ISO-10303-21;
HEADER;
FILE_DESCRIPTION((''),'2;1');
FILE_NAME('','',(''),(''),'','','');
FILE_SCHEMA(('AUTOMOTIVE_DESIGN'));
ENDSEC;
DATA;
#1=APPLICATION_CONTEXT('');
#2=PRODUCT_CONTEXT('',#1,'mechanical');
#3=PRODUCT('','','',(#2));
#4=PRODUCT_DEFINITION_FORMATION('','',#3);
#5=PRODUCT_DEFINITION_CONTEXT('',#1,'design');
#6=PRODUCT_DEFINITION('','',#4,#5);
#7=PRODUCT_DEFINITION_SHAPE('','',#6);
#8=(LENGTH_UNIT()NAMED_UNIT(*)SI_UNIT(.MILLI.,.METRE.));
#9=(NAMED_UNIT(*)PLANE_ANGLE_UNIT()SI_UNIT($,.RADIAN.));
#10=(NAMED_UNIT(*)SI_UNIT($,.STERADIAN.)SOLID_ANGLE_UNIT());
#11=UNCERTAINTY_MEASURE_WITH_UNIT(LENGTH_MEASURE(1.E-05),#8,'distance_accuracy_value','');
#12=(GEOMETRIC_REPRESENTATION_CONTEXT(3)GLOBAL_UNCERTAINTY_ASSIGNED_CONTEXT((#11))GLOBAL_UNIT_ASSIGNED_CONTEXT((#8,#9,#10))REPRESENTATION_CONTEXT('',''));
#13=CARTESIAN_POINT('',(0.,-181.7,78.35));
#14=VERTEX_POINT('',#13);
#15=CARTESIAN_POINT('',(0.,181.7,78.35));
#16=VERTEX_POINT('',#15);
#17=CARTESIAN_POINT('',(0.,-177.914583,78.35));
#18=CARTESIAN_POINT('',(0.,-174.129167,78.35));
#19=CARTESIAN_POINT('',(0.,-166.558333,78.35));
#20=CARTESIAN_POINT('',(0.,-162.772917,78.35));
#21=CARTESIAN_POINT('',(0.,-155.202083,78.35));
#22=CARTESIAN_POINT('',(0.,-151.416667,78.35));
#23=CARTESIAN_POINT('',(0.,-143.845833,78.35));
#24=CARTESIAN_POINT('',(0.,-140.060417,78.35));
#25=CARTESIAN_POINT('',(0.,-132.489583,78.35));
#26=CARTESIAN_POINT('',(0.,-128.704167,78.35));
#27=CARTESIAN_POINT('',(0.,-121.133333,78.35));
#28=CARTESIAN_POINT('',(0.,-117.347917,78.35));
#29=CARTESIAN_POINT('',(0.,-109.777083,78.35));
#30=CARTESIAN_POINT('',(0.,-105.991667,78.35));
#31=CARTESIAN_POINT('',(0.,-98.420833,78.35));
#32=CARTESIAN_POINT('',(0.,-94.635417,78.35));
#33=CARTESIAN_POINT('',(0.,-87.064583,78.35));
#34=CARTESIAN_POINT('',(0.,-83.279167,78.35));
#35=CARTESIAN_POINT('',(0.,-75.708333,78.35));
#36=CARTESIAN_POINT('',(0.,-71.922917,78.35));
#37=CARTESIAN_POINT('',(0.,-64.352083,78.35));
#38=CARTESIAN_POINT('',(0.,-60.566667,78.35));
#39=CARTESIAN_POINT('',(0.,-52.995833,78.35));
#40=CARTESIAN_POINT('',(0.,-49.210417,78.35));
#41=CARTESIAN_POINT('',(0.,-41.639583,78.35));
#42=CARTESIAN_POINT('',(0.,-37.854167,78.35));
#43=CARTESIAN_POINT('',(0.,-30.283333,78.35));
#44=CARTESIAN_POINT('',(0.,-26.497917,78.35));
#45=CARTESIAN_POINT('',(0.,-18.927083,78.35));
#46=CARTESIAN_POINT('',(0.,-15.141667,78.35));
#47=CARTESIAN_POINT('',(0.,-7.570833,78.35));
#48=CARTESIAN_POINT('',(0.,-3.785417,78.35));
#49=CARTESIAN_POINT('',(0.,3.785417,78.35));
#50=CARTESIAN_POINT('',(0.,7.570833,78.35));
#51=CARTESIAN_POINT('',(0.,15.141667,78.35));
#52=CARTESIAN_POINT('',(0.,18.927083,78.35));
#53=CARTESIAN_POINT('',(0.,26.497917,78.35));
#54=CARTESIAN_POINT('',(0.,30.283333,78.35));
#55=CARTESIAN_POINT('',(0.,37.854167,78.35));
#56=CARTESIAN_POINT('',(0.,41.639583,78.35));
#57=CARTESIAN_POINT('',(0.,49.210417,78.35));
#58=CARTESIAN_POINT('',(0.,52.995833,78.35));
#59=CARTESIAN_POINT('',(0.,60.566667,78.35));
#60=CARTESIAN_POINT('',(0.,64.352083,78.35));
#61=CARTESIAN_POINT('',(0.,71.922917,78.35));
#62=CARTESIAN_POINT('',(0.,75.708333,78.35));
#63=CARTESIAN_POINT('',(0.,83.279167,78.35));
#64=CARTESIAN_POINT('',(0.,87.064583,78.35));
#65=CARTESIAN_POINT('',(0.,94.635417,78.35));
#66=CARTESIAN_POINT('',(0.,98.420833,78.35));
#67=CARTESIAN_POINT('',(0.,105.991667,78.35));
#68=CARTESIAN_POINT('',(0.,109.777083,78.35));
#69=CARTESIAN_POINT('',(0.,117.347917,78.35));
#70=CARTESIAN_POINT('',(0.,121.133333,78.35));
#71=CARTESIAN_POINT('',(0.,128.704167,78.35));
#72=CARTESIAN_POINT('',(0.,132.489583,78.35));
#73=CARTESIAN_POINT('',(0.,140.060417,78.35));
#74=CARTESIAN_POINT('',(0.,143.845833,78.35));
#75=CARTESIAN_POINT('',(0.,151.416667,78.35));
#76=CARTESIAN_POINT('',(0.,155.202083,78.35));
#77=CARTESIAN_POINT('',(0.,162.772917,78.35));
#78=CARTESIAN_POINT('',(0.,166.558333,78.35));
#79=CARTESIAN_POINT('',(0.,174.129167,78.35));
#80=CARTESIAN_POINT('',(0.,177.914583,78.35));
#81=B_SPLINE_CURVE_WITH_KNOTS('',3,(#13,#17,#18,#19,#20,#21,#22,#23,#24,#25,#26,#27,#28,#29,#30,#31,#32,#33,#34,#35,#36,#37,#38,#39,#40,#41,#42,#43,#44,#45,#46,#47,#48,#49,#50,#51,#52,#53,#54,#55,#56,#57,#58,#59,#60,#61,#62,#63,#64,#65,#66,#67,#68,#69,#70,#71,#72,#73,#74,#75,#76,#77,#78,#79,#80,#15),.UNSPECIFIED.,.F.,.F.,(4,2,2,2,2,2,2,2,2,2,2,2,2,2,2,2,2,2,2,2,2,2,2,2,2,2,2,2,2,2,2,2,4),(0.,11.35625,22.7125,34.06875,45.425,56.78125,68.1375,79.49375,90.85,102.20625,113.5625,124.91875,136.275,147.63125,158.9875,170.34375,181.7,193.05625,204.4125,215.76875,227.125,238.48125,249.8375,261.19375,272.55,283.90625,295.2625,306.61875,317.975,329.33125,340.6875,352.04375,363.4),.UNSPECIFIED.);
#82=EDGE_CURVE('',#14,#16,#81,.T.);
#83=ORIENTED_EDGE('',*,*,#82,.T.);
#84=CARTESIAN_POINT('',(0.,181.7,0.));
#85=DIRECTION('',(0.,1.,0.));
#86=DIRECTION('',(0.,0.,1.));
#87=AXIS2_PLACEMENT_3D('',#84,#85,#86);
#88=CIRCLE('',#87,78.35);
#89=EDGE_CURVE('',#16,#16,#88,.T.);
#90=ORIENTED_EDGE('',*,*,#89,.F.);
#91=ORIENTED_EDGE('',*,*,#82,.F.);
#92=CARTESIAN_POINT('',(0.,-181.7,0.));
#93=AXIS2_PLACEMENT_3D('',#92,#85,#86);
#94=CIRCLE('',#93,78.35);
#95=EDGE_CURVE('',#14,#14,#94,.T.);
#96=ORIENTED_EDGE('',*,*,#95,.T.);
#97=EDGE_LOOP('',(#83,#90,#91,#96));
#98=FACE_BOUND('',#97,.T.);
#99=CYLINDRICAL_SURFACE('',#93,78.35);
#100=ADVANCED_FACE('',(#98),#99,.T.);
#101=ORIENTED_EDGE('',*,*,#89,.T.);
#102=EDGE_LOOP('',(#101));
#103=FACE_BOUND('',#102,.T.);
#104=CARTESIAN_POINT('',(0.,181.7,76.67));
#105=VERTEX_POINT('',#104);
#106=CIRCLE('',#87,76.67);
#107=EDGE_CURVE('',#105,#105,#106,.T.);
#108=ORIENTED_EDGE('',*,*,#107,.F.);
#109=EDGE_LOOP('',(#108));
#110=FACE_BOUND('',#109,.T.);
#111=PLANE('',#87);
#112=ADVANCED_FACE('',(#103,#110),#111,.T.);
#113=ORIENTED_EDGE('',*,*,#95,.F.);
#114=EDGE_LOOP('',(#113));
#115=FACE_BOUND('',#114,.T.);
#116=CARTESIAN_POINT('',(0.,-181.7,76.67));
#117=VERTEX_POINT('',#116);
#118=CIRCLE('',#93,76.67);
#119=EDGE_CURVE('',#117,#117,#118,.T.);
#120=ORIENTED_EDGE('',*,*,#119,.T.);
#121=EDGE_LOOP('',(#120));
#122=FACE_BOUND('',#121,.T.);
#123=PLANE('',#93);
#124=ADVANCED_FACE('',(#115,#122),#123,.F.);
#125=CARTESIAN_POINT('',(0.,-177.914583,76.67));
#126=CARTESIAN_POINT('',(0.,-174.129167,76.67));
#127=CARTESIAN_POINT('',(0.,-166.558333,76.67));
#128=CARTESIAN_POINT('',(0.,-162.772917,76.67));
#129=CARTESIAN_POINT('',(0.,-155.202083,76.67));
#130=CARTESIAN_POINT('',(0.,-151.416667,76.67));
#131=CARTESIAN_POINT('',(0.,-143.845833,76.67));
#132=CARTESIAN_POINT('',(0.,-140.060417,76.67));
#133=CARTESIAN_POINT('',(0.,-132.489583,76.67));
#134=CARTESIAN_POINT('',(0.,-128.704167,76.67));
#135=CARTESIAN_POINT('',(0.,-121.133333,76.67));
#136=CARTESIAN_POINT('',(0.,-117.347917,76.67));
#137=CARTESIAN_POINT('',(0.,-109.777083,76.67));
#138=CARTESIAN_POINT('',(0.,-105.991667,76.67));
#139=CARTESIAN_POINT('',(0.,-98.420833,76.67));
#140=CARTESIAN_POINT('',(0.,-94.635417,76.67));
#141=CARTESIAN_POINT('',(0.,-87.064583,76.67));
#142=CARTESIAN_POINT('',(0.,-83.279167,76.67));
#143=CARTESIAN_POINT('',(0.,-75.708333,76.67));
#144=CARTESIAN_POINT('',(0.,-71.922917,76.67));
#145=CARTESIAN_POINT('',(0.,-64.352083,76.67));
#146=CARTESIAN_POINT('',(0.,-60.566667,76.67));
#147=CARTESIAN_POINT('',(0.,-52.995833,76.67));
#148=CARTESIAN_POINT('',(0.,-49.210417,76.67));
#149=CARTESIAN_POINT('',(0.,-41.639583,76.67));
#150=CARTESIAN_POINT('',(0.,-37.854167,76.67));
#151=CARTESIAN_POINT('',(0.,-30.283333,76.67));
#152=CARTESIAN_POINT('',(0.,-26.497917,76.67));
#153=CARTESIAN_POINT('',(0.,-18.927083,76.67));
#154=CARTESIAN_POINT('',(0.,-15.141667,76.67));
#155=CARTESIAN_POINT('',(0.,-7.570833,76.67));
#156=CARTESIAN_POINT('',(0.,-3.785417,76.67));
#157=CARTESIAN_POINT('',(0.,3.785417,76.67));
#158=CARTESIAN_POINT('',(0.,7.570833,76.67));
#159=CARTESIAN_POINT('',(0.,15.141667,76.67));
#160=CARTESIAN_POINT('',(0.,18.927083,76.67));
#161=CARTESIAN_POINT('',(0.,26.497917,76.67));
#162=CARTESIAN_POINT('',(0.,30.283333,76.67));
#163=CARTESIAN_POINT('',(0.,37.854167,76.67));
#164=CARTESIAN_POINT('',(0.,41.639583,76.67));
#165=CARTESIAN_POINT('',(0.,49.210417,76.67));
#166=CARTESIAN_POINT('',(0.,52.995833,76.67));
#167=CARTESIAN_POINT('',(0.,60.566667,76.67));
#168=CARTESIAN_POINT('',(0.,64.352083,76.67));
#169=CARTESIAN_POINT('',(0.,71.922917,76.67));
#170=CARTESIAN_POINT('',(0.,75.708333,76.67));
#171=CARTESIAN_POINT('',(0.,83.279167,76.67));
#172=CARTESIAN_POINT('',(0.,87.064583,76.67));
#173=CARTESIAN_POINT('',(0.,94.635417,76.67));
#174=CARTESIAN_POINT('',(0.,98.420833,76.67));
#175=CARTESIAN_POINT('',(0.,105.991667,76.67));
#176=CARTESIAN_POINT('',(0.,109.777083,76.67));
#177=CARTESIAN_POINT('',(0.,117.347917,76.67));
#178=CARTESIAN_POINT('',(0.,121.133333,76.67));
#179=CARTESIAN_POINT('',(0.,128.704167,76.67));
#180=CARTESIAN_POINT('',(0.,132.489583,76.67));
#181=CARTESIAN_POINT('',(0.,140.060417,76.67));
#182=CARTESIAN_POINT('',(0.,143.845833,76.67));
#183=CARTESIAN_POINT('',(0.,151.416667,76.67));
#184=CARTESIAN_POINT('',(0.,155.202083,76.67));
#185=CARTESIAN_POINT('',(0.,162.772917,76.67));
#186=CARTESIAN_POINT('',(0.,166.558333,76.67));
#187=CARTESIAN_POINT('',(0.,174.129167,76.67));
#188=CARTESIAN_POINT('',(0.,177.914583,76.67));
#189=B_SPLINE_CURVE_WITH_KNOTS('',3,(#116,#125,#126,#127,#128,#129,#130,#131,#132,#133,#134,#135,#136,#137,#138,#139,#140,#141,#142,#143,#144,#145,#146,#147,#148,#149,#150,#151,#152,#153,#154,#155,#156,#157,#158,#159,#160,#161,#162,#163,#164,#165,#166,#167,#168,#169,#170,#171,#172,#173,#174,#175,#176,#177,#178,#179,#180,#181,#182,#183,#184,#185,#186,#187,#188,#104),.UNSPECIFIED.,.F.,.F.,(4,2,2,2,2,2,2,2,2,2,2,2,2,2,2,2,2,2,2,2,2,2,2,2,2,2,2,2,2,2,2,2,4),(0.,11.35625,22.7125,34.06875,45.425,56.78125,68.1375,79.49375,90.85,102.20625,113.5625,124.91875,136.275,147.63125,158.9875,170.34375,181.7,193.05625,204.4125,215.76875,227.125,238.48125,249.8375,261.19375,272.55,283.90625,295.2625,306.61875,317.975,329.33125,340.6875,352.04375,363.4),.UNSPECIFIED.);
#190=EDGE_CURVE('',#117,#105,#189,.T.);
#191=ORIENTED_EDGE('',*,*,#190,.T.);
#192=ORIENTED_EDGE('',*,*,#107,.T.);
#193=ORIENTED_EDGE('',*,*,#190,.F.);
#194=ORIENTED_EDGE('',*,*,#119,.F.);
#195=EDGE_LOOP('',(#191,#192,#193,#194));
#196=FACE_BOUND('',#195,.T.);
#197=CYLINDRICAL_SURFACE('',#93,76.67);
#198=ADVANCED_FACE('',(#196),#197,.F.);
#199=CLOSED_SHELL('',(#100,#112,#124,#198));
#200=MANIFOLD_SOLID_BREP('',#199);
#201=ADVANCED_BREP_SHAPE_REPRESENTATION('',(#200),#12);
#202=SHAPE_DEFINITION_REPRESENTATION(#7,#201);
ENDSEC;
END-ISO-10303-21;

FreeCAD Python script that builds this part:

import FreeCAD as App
import Part
import Sketcher
from FreeCAD import Vector

doc = App.newDocument("Part")
body = doc.addObject("PartDesign::Body", "Body")

# Sketch on XZ plane
sketch1 = body.newObject("Sketcher::SketchObject", "Sketch")
sketch1.AttachmentSupport = (doc.getObject("XZ_Plane"), [""])
sketch1.MapMode = "FlatFace"
sketch1.addGeometry(Part.Circle(Vector(0, 0, 0), Vector(0, 0, 1), 78), False)
sketch1.addGeometry(Part.Circle(Vector(0, 0, 0), Vector(0, 0, 1), 77), False)
sketch1.addConstraint(Sketcher.Constraint("Coincident", 0, 3, -1, 1))
sketch1.addConstraint(Sketcher.Constraint("Coincident", 1, 3, -1, 1))
sketch1.addConstraint(Sketcher.Constraint("Diameter", 0, 156.7))
sketch1.addConstraint(Sketcher.Constraint("Diameter", 1, 153.34))
pad1 = body.newObject("PartDesign::Pad", "Pad")
pad1.Profile = sketch1
pad1.Type = "TwoLengths"
pad1.Length = 181.7
pad1.Length2 = 181.7
pad1.Reversed = True

doc.recompute()
